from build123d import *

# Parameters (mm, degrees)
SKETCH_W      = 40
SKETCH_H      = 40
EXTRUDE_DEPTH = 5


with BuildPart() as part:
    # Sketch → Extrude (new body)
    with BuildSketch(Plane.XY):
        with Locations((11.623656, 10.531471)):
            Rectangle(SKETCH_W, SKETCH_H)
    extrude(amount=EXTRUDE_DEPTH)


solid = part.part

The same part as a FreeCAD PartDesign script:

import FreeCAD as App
import Part
import Sketcher

V = App.Vector
Q = App.Units.Quantity


def add_polygon(sketch, points):
    """Adds a closed chain of lines whose ends are joined by coincident constraints."""
    first, n = sketch.GeometryCount, len(points)
    for a, b in zip(points, points[1:] + points[:1]):
        sketch.addGeometry(Part.LineSegment(App.Vector(*a, 0), App.Vector(*b, 0)), False)
    for i in range(n):
        sketch.addConstraint(Sketcher.Constraint("Coincident", first + i, 2, first + (i + 1) % n, 1))

doc = App.newDocument("Part")
body = doc.addObject("PartDesign::Body", "Body")

sketch1 = body.newObject("Sketcher::SketchObject", "Sketch")
sketch1.AttachmentSupport = (doc.getObject("XY_Plane"), [""])
sketch1.MapMode = "FlatFace"
add_polygon(sketch1, [(-8.376344, 30.531471), (-8.376344, -9.468529), (31.623656, -9.468529), (31.623656, 30.531471)])
sketch1.addConstraint([
    Sketcher.Constraint("Vertical", 0),
    Sketcher.Constraint("Horizontal", 1),
    Sketcher.Constraint("Vertical", 2),
    Sketcher.Constraint("Horizontal", 3),
    Sketcher.Constraint("Equal", 3, 0),
    Sketcher.Constraint("DistanceX", 1, 1, 1, 2, Q("40 mm")),
    Sketcher.Constraint("DistanceY", 0, 2, -1, 1, Q("9.468529 mm")),
    Sketcher.Constraint("DistanceX", 0, 2, -1, 1, Q("8.376344 mm")),
])
pad1 = body.newObject("PartDesign::Pad", "Pad")
pad1.Profile = sketch1
pad1.Length = 5

doc.recompute()
